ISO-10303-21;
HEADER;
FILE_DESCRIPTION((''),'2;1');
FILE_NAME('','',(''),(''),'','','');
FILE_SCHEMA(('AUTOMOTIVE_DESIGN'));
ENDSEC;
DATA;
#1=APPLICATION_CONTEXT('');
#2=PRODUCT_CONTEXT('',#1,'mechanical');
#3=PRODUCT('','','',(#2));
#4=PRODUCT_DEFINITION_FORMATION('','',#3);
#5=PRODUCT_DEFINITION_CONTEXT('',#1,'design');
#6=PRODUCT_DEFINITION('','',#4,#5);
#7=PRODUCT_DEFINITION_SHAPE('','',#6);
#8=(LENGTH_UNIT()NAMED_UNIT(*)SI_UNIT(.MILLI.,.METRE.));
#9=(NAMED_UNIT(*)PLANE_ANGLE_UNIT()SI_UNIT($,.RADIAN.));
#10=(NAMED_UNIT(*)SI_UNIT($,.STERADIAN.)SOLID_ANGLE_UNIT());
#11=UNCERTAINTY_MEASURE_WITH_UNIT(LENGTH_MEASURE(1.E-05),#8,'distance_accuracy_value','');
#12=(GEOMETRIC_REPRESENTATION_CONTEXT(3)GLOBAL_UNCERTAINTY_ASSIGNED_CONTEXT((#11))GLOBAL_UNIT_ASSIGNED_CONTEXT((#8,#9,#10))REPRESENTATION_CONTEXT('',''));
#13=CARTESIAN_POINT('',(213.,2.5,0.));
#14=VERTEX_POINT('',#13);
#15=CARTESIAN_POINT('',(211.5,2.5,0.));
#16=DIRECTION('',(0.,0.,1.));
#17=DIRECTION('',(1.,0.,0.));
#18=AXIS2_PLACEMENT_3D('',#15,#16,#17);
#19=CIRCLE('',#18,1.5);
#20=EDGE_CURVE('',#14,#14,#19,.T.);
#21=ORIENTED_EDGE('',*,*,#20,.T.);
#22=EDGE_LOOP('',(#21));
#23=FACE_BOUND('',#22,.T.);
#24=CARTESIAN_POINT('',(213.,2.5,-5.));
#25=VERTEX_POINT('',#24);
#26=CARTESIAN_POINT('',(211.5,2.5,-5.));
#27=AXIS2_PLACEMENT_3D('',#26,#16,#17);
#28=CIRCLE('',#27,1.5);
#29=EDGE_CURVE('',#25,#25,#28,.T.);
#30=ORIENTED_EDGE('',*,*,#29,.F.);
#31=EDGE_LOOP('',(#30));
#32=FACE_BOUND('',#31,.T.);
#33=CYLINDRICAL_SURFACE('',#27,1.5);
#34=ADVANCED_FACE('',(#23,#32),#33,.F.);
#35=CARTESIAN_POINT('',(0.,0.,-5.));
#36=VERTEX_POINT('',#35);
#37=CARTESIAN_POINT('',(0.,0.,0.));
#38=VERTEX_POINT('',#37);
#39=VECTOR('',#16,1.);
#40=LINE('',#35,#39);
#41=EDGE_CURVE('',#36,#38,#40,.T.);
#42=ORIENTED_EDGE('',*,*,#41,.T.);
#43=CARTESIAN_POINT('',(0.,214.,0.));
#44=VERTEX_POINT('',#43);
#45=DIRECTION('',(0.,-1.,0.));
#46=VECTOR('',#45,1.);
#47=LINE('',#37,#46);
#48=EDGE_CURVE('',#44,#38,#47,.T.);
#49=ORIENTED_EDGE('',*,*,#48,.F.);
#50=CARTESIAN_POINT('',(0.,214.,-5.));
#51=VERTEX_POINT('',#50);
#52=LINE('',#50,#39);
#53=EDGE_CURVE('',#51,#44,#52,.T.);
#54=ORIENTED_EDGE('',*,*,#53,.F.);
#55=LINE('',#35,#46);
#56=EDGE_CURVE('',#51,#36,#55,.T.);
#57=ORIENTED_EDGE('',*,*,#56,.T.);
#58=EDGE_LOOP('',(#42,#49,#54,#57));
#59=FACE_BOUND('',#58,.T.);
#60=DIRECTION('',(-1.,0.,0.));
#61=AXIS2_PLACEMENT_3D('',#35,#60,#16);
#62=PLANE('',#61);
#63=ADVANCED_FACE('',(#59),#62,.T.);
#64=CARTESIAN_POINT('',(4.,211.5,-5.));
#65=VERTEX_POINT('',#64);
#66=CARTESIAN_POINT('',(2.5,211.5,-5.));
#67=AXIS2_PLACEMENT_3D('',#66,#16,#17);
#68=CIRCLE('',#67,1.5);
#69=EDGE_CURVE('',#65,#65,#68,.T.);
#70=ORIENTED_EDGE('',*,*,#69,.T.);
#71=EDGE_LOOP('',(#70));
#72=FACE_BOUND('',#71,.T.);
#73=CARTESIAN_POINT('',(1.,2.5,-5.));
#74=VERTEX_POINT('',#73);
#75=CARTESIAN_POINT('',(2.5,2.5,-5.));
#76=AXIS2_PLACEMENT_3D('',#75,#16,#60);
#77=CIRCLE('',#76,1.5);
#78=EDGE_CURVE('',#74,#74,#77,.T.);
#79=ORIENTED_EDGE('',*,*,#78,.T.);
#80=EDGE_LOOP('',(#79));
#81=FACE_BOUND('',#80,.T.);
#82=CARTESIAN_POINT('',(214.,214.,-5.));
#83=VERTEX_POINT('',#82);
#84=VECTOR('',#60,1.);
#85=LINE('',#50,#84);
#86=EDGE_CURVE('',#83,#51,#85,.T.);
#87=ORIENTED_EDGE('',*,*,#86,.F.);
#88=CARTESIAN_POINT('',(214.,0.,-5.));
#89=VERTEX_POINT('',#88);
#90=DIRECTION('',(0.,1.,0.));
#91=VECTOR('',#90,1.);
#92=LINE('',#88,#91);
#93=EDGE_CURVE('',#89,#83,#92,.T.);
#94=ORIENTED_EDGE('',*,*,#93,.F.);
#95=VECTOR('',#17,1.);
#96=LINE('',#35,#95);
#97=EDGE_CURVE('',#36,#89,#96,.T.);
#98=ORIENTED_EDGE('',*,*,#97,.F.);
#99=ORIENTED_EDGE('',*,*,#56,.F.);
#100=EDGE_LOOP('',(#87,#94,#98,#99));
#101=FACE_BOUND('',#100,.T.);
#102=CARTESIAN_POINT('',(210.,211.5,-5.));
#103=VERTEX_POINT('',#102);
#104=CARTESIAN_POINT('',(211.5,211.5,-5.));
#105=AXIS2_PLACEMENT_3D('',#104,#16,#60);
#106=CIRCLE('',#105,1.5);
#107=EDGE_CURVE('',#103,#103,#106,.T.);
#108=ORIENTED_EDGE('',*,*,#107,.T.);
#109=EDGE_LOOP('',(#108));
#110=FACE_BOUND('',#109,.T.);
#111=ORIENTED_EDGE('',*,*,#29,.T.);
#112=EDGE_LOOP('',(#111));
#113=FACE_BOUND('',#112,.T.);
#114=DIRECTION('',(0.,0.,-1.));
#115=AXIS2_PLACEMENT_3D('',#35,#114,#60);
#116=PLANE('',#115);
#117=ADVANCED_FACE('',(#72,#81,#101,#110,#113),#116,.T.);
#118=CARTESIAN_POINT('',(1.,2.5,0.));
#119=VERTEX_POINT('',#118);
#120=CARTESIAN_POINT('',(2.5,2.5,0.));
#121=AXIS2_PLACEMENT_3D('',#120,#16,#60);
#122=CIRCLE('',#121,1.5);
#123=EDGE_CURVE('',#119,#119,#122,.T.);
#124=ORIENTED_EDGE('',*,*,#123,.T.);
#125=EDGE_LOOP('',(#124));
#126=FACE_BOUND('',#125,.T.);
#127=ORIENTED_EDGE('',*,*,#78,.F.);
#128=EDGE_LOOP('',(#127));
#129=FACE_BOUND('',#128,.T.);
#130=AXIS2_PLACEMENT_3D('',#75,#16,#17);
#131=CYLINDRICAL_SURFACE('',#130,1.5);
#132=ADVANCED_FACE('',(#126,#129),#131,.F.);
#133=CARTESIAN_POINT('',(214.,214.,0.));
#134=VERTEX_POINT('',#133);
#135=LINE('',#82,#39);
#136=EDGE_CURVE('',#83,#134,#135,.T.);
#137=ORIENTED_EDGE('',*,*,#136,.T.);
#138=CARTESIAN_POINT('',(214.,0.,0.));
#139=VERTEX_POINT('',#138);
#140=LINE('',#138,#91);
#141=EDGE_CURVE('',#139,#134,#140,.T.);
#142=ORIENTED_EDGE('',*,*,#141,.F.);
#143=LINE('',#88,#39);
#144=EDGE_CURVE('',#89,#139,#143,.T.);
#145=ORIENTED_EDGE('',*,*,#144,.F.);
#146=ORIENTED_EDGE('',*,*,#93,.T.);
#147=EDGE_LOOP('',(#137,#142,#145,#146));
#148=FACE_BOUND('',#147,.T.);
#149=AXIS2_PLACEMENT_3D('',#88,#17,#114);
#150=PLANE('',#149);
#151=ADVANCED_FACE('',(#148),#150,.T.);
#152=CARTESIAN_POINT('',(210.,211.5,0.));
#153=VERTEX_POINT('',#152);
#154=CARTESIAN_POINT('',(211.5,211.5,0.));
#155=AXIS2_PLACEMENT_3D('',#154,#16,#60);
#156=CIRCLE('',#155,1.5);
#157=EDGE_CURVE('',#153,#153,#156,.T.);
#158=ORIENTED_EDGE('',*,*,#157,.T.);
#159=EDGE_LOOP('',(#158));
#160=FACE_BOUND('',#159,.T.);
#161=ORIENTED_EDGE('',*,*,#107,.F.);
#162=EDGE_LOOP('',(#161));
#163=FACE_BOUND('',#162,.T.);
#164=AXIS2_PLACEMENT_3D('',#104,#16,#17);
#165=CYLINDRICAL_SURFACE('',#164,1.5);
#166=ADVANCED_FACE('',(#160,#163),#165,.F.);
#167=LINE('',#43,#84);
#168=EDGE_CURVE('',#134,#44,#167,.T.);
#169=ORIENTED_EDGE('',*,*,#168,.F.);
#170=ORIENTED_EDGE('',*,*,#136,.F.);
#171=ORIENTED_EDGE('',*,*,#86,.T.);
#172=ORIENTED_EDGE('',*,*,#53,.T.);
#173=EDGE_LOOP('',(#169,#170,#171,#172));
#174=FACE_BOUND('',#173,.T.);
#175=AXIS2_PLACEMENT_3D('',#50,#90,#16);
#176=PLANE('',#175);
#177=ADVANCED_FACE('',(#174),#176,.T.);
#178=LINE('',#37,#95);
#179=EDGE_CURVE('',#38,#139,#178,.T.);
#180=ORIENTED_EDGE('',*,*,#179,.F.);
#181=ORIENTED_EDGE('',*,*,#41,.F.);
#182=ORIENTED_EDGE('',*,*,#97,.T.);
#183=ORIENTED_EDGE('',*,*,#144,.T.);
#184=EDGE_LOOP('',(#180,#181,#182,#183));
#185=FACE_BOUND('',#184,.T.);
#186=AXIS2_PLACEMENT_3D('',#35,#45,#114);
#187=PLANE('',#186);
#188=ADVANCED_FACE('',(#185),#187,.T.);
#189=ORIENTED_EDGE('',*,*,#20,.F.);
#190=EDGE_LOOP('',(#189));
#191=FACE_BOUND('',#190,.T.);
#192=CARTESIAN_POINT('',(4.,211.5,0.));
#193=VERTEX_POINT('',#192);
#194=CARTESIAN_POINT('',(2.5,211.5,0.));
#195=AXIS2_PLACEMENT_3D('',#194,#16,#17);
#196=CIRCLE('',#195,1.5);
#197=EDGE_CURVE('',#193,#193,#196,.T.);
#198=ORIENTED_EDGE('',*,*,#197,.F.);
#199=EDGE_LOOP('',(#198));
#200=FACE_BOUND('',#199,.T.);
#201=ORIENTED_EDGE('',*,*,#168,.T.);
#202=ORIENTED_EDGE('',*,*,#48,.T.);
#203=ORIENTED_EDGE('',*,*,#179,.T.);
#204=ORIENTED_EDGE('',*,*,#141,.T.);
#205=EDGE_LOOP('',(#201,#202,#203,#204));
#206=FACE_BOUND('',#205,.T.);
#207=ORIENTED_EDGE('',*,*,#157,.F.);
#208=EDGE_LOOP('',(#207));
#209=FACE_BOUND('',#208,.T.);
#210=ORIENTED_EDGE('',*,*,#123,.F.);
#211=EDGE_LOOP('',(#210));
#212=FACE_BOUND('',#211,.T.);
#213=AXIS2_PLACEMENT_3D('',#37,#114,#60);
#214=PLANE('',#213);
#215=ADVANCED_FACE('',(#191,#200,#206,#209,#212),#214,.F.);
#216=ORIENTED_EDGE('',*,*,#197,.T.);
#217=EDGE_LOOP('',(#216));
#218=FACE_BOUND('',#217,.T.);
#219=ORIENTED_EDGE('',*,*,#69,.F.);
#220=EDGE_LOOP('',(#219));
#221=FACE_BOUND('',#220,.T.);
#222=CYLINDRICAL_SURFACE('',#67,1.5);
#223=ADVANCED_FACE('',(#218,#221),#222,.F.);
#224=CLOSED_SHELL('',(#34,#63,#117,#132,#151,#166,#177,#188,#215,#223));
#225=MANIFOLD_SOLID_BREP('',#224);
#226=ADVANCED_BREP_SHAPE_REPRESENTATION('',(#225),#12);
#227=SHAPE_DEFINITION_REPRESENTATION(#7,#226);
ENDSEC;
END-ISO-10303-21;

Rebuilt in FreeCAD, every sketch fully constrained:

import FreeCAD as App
import Part
import Sketcher

V = App.Vector


def add_polygon(sketch, points):
    """Adds a closed chain of lines whose ends are joined by coincident constraints."""
    first, n = sketch.GeometryCount, len(points)
    for a, b in zip(points, points[1:] + points[:1]):
        sketch.addGeometry(Part.LineSegment(App.Vector(*a, 0), App.Vector(*b, 0)), False)
    for i in range(n):
        sketch.addConstraint(Sketcher.Constraint("Coincident", first + i, 2, first + (i + 1) % n, 1))

doc = App.newDocument("Part")
body = doc.addObject("PartDesign::Body", "Body")

# Sketch on XY plane
sketch1 = body.newObject("Sketcher::SketchObject", "Sketch")
sketch1.AttachmentSupport = (doc.getObject("XY_Plane"), [""])
sketch1.MapMode = "FlatFace"
add_polygon(sketch1, [(0, 214), (0, 0), (214, 0), (214, 214)])  # lines 0-3
sketch1.addGeometry(Part.Circle(V(2.5, 2.5, 0), V(0, 0, 1), 1.5), False)  # 4
sketch1.addGeometry(Part.Circle(V(211.5, 2.5, 0), V(0, 0, 1), 1.5), False)  # 5
sketch1.addGeometry(Part.Circle(V(2.5, 211.5, 0), V(0, 0, 1), 1.5), False)  # 6
sketch1.addGeometry(Part.Circle(V(211.5, 211.5, 0), V(0, 0, 1), 1.5), False)  # 7
sketch1.addConstraint([
    Sketcher.Constraint("Vertical", 0),
    Sketcher.Constraint("Horizontal", 1),
    Sketcher.Constraint("Vertical", 2),
    Sketcher.Constraint("Horizontal", 3),
    Sketcher.Constraint("Coincident", 0, 2, -1, 1),
    Sketcher.Constraint("Equal", 4, 5),
    Sketcher.Constraint("Equal", 5, 6),
    Sketcher.Constraint("Equal", 6, 7),
    Sketcher.Constraint("Horizontal", 4, 3, 5, 3),
    Sketcher.Constraint("Horizontal", 6, 3, 7, 3),
    Sketcher.Constraint("Vertical", 4, 3, 6, 3),
    Sketcher.Constraint("Vertical", 5, 3, 7, 3),
    Sketcher.Constraint("Equal", 3, 0),
    Sketcher.Constraint("Diameter", 4, 3.0),
    Sketcher.Constraint("DistanceX", 1, 1, 1, 2, 214.0),
    Sketcher.Constraint("DistanceX", 4, 3, 5, 3, 209.0),
    Sketcher.Constraint("DistanceY", 4, 3, 6, 3, 209.0),
    Sketcher.Constraint("DistanceX", -1, 1, 4, 3, 2.5),
    Sketcher.Constraint("DistanceY", -1, 1, 4, 3, 2.5),
])
pad1 = body.newObject("PartDesign::Pad", "Pad")
pad1.Profile = sketch1
pad1.Length = 5
pad1.Reversed = True

doc.recompute()
